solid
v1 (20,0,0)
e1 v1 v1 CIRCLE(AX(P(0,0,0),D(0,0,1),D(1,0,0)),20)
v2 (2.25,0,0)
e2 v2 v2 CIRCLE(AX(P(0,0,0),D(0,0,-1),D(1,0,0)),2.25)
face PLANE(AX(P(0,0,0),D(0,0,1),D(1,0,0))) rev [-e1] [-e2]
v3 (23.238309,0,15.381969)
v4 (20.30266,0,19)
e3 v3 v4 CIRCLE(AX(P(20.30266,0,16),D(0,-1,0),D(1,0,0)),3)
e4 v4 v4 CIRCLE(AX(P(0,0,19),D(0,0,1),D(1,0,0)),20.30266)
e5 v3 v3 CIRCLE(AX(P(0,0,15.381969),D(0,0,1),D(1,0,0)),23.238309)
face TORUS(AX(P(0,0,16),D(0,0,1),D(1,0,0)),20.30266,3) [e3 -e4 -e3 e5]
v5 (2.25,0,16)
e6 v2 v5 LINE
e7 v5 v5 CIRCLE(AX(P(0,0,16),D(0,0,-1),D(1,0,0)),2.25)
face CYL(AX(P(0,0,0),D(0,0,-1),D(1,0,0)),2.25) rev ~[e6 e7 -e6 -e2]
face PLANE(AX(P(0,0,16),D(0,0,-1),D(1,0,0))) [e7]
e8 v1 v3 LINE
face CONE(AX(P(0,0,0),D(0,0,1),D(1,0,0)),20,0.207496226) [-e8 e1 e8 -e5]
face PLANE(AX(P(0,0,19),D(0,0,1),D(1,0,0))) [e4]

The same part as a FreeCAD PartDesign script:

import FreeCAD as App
import Part
import Sketcher
Q = App.Units.Quantity


def edges_at(feature, points):
    """Names of the edges that pass closest to the given points."""
    edges = feature.Shape.Edges
    near = lambda p: min(range(len(edges)), key=lambda i: edges[i].distToShape(Part.Vertex(*p))[0])
    return sorted({f"Edge{near(p) + 1}" for p in points})


def add_polygon(sketch, points):
    """Adds a closed chain of lines whose ends are joined by coincident constraints."""
    first, n = sketch.GeometryCount, len(points)
    for a, b in zip(points, points[1:] + points[:1]):
        sketch.addGeometry(Part.LineSegment(App.Vector(*a, 0), App.Vector(*b, 0)), False)
    for i in range(n):
        sketch.addConstraint(Sketcher.Constraint("Coincident", first + i, 2, first + (i + 1) % n, 1))

doc = App.newDocument("Part")
body = doc.addObject("PartDesign::Body", "Body")

sketch1 = doc.addObject("Sketcher::SketchObject", "Sketch")
body.addObject(sketch1)
sketch1.AttachmentSupport = (doc.XZ_Plane, [""])
sketch1.MapMode = "FlatFace"
add_polygon(sketch1, [(0, 19), (0, 0), (20, 0), (24, 19)])
sketch1.addConstraint(Sketcher.Constraint("Vertical", 0))
sketch1.addConstraint(Sketcher.Constraint("Horizontal", 1))
sketch1.addConstraint(Sketcher.Constraint("Horizontal", 3))
sketch1.addConstraint(Sketcher.Constraint("Coincident", 0, 2, -1, 1))
sketch1.addConstraint(Sketcher.Constraint("DistanceX", 1, 1, 1, 2, Q("20 mm")))
sketch1.addConstraint(Sketcher.Constraint("DistanceX", 3, 2, 3, 1, Q("24 mm")))
sketch1.addConstraint(Sketcher.Constraint("DistanceY", 0, 2, 0, 1, Q("19 mm")))
revolution = doc.addObject("PartDesign::Revolution", "Revolution")
body.addObject(revolution)
revolution.Profile = sketch1
revolution.ReferenceAxis = (sketch1, ["V_Axis"])
revolution.Angle = 360
doc.recompute()

fillet = doc.addObject("PartDesign::Fillet", "Fillet")
body.addObject(fillet)
fillet.Base = (revolution, edges_at(revolution, [(-24, 0, 19)]))
fillet.Radius = 3

sketch2 = doc.addObject("Sketcher::SketchObject", "Sketch001")
body.addObject(sketch2)
sketch2.AttachmentSupport = (doc.XY_Plane, [""])
sketch2.MapMode = "FlatFace"
sketch2.addGeometry(Part.Circle(App.Vector(0, 0, 0), App.Vector(0, 0, 1), 2.25), False)
sketch2.addConstraint(Sketcher.Constraint("Coincident", 0, 3, -1, 1))
sketch2.addConstraint(Sketcher.Constraint("Diameter", 0, Q("4.5 mm")))
pocket1 = doc.addObject("PartDesign::Pocket", "Pocket")
body.addObject(pocket1)
pocket1.Profile = sketch2
pocket1.Length = 16
pocket1.Reversed = True

doc.recompute()
